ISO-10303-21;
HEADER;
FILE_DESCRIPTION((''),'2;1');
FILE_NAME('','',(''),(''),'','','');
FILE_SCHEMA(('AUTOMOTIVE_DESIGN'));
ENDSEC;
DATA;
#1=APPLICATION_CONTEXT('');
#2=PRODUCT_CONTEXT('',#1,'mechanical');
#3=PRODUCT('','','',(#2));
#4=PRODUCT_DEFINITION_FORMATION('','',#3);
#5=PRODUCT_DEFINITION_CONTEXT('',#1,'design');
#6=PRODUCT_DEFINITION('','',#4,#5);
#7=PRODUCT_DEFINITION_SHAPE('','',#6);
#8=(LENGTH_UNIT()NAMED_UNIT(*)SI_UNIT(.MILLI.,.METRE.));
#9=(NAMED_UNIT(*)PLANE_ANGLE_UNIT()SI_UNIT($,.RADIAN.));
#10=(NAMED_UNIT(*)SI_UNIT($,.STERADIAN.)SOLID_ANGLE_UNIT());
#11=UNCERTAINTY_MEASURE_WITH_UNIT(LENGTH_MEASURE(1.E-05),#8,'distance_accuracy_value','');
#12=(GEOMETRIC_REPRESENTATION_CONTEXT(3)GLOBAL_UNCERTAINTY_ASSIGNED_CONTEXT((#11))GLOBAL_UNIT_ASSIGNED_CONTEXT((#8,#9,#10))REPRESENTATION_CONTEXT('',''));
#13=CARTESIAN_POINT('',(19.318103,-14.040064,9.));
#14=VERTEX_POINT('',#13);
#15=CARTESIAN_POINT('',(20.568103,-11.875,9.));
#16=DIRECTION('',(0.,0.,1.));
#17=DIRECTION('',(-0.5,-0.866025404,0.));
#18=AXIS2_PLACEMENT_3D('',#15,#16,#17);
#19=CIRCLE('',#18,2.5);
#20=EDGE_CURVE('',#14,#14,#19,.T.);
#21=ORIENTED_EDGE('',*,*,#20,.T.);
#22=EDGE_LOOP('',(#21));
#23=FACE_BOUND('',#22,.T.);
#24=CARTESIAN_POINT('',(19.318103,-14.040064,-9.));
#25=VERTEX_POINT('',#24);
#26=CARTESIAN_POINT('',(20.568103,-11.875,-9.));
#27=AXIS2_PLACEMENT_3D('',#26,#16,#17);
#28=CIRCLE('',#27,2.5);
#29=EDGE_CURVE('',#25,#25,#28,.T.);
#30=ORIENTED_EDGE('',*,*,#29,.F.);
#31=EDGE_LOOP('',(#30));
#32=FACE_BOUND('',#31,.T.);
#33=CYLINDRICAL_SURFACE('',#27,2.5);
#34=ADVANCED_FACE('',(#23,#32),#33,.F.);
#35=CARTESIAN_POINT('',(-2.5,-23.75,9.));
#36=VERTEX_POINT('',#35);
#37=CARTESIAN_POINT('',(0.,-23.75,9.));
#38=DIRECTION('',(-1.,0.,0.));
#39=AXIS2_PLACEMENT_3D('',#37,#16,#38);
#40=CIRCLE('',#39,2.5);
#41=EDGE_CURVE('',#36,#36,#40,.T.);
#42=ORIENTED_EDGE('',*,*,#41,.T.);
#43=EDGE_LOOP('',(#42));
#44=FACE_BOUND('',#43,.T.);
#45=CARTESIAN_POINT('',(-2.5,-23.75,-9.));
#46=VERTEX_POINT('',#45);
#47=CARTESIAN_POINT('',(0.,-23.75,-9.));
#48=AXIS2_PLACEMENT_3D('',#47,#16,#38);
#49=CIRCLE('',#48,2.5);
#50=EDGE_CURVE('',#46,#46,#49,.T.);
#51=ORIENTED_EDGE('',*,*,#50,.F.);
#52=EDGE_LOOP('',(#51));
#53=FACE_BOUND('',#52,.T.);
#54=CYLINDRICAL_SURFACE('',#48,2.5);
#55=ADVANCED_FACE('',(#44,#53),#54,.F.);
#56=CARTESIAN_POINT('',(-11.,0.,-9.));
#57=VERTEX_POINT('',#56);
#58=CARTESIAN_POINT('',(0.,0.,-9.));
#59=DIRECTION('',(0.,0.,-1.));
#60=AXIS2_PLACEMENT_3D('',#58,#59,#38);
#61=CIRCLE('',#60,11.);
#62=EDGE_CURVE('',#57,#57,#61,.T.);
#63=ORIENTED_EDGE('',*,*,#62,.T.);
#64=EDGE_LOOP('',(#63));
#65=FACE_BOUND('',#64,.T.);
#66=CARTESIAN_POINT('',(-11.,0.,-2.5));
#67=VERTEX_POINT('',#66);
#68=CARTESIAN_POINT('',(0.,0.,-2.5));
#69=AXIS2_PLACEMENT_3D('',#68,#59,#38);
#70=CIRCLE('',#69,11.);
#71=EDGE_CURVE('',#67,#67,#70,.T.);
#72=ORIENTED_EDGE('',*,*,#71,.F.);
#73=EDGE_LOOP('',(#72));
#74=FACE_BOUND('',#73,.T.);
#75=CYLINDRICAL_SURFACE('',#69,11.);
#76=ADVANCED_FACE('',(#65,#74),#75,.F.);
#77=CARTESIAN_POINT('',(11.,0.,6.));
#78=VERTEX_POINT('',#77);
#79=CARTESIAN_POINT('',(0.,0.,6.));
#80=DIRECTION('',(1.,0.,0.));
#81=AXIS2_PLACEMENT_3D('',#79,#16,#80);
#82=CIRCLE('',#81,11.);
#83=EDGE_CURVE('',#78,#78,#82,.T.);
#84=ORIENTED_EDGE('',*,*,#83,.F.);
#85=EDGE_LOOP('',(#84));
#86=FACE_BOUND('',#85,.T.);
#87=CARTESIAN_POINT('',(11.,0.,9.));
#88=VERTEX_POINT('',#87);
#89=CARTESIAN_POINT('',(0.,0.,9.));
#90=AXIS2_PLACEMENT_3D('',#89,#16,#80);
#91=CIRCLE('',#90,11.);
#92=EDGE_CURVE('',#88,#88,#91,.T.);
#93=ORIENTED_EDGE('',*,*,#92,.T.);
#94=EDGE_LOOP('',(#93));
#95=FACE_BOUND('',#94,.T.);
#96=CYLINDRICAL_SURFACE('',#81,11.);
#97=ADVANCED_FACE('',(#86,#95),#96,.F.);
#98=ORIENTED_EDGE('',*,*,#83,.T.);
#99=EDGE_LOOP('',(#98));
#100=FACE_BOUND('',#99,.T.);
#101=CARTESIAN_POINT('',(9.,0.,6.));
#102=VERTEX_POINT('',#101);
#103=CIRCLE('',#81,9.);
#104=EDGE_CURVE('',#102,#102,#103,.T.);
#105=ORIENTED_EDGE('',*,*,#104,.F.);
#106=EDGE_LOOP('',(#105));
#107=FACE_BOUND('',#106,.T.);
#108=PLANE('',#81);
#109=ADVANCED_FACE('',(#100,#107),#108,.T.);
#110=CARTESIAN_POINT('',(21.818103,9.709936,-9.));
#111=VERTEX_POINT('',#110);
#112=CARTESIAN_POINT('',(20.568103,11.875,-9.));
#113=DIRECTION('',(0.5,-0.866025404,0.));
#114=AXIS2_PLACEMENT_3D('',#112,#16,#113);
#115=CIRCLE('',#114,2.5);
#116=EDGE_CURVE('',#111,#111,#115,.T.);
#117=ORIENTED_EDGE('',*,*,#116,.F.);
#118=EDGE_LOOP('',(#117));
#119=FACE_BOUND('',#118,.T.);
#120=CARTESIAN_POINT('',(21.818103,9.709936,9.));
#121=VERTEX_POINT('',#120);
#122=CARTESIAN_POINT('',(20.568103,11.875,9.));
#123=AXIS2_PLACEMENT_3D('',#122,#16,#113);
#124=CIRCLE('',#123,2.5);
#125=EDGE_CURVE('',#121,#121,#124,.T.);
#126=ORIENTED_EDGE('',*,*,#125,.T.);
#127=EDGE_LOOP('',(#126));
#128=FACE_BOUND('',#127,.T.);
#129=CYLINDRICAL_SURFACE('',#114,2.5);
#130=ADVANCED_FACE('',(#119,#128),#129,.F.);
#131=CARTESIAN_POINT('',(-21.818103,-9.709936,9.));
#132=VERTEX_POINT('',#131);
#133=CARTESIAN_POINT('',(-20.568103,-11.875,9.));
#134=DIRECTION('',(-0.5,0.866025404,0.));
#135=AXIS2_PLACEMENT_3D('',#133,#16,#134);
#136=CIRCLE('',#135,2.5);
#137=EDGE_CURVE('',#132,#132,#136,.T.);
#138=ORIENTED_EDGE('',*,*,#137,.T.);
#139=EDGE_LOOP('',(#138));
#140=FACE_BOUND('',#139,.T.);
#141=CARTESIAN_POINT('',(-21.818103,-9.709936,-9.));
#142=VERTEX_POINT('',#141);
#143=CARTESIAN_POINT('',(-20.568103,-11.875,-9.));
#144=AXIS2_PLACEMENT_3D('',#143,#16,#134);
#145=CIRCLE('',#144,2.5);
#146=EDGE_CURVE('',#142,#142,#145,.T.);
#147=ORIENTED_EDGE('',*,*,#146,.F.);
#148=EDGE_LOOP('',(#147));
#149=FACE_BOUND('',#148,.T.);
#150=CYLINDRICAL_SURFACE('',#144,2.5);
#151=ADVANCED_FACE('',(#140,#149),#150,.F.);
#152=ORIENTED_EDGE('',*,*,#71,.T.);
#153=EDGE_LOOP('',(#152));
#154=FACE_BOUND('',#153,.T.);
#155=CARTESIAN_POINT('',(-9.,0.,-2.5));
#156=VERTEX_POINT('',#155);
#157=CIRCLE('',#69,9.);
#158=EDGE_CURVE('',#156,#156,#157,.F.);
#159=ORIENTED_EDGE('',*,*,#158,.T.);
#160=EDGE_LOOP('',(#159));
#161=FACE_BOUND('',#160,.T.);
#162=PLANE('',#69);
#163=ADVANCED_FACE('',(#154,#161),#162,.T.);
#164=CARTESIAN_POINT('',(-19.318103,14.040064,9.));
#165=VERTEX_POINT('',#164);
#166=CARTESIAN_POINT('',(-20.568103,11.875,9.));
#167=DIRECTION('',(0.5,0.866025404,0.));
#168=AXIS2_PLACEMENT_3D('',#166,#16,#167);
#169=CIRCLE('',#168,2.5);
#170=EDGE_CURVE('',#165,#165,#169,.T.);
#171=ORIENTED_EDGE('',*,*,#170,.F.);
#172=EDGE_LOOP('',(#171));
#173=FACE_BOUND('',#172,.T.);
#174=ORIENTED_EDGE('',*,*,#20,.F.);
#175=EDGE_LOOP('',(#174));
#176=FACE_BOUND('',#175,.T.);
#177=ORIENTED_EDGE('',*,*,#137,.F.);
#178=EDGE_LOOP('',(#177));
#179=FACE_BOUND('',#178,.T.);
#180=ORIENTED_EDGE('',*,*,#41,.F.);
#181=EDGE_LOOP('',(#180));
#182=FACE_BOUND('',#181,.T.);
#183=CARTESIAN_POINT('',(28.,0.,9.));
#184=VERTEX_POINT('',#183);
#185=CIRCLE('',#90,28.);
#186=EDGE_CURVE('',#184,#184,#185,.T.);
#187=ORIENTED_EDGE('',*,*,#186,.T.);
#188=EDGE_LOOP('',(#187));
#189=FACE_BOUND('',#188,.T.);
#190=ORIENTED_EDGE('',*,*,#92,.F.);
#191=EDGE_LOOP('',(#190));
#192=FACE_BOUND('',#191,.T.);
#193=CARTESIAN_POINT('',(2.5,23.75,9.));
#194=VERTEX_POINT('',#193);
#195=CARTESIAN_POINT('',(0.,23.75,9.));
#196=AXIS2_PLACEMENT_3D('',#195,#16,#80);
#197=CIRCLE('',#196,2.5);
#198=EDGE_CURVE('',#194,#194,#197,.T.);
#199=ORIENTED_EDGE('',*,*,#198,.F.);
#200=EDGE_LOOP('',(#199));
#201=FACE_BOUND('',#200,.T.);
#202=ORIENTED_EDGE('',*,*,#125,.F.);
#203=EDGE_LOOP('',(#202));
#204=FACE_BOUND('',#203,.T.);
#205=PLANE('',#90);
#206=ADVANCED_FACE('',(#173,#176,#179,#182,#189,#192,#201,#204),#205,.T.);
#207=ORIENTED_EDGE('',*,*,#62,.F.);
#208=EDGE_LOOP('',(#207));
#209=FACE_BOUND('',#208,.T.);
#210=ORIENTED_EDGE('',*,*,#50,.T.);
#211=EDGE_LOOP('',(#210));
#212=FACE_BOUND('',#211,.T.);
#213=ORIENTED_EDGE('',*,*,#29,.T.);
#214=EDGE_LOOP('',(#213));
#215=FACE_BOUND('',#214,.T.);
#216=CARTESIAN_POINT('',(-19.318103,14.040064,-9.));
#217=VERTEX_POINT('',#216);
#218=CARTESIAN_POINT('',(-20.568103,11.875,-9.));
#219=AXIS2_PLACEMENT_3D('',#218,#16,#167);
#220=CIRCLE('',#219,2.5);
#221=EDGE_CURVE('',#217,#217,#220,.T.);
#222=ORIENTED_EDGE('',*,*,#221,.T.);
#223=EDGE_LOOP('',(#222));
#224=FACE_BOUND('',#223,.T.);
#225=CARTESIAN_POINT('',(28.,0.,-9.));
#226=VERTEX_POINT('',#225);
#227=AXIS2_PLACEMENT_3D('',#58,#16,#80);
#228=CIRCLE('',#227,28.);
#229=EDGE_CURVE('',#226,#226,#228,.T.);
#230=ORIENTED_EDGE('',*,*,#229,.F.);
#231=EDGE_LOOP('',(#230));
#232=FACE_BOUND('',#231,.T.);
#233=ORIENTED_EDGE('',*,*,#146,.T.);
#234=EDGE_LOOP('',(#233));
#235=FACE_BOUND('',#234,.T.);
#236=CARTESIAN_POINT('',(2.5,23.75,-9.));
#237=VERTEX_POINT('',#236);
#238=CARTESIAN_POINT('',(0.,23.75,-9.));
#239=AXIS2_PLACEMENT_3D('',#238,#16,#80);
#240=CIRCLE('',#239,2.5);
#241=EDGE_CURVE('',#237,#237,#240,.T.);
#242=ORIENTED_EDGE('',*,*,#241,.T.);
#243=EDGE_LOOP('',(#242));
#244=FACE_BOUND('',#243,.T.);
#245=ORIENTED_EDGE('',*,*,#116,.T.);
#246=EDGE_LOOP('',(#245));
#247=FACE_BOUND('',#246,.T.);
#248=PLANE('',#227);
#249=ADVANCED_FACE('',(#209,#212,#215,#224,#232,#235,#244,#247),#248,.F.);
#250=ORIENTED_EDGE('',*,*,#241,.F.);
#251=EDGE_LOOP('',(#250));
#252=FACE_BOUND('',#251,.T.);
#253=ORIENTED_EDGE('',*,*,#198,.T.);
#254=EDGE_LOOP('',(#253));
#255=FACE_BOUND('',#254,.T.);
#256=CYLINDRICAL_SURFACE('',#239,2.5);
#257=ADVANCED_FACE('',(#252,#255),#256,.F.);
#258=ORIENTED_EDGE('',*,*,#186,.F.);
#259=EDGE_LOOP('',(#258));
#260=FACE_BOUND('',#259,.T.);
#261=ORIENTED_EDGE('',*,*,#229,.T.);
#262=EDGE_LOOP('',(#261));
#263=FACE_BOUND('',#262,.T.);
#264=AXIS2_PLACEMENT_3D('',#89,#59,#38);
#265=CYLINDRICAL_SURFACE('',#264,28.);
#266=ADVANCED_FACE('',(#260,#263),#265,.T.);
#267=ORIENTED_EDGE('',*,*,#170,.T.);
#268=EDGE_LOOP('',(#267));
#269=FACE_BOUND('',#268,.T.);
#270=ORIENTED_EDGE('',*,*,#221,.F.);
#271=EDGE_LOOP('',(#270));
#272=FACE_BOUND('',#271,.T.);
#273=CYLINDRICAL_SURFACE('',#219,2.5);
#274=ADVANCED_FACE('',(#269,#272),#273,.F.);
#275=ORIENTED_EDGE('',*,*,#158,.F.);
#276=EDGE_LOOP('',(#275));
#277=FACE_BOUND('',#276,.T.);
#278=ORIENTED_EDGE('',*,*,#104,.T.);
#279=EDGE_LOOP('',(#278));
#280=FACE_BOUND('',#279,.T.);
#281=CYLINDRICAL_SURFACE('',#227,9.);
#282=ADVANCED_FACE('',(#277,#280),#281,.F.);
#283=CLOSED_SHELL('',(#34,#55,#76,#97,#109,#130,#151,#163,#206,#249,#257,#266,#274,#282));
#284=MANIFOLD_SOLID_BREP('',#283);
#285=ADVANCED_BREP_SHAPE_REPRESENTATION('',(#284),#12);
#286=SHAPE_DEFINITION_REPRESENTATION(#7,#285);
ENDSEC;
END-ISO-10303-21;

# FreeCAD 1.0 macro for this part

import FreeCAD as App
import Part
import Sketcher

V = App.Vector

doc = App.newDocument("Part")
body = doc.addObject("PartDesign::Body", "Body")

# Sketch on XY plane
sketch1 = body.newObject("Sketcher::SketchObject", "Sketch")
sketch1.AttachmentSupport = (doc.getObject("XY_Plane"), [""])
sketch1.MapMode = "FlatFace"
sketch1.addGeometry(Part.Circle(V(0, 0, 0), V(0, 0, 1), 28), False)
sketch1.addConstraint(Sketcher.Constraint("Coincident", 0, 3, -1, 1))
sketch1.addConstraint(Sketcher.Constraint("Diameter", 0, 56.0))
pad1 = body.newObject("PartDesign::Pad", "Pad")
pad1.Profile = sketch1
pad1.Length = 18
pad1.Midplane = True

# Sketch on XY plane
sketch2 = body.newObject("Sketcher::SketchObject", "Sketch001")
sketch2.AttachmentSupport = (doc.getObject("XY_Plane"), [""])
sketch2.MapMode = "FlatFace"
sketch2.AttachmentOffset = App.Placement(V(0, 0, 9), App.Rotation())
sketch2.addGeometry(Part.Circle(V(0, 0, 0), V(0, 0, 1), 11), False)
sketch2.addConstraint(Sketcher.Constraint("Coincident", 0, 3, -1, 1))
sketch2.addConstraint(Sketcher.Constraint("Diameter", 0, 22.0))
pocket1 = body.newObject("PartDesign::Pocket", "Pocket")
pocket1.Profile = sketch2
pocket1.Length = 3

# Sketch on XY plane
sketch3 = body.newObject("Sketcher::SketchObject", "Sketch002")
sketch3.AttachmentSupport = (doc.getObject("XY_Plane"), [""])
sketch3.MapMode = "FlatFace"
sketch3.AttachmentOffset = App.Placement(V(0, 0, 6), App.Rotation())
sketch3.addGeometry(Part.Circle(V(0, 0, 0), V(0, 0, 1), 9), False)
sketch3.addConstraint(Sketcher.Constraint("Coincident", 0, 3, -1, 1))
sketch3.addConstraint(Sketcher.Constraint("Diameter", 0, 18.0))
pocket2 = body.newObject("PartDesign::Pocket", "Pocket001")
pocket2.Profile = sketch3
pocket2.Type = "ThroughAll"

# Sketch on XY plane
sketch4 = body.newObject("Sketcher::SketchObject", "Sketch003")
sketch4.AttachmentSupport = (doc.getObject("XY_Plane"), [""])
sketch4.MapMode = "FlatFace"
sketch4.AttachmentOffset = App.Placement(V(0, 0, -9), App.Rotation())
sketch4.addGeometry(Part.Circle(V(0, 0, 0), V(0, 0, 1), 11), False)
sketch4.addConstraint(Sketcher.Constraint("Coincident", 0, 3, -1, 1))
sketch4.addConstraint(Sketcher.Constraint("Diameter", 0, 22.0))
pocket3 = body.newObject("PartDesign::Pocket", "Pocket002")
pocket3.Profile = sketch4
pocket3.Length = 6.5
pocket3.Reversed = True

# Sketch on XY plane
sketch5 = body.newObject("Sketcher::SketchObject", "Sketch004")
sketch5.AttachmentSupport = (doc.getObject("XY_Plane"), [""])
sketch5.MapMode = "FlatFace"
sketch5.AttachmentOffset = App.Placement(V(0, 0, 9), App.Rotation())
sketch5.addGeometry(Part.Circle(V(0, 23.8, 0), V(0, 0, 1), 2.5), False)
sketch5.addConstraint(Sketcher.Constraint("PointOnObject", 0, 3, -2))
sketch5.addConstraint(Sketcher.Constraint("Diameter", 0, 5.0))
sketch5.addConstraint(Sketcher.Constraint("DistanceY", -1, 1, 0, 3, 23.75))
pocket4 = body.newObject("PartDesign::Pocket", "Pocket003")
pocket4.Profile = sketch5
pocket4.Type = "ThroughAll"
doc.recompute()

polarpattern = body.newObject("PartDesign::PolarPattern", "PolarPattern")
polarpattern.Originals = [pocket4]
polarpattern.Axis = (doc.getObject("Z_Axis"), [""])
polarpattern.Angle = 360
polarpattern.Occurrences = 6
body.Tip = polarpattern

doc.recompute()
